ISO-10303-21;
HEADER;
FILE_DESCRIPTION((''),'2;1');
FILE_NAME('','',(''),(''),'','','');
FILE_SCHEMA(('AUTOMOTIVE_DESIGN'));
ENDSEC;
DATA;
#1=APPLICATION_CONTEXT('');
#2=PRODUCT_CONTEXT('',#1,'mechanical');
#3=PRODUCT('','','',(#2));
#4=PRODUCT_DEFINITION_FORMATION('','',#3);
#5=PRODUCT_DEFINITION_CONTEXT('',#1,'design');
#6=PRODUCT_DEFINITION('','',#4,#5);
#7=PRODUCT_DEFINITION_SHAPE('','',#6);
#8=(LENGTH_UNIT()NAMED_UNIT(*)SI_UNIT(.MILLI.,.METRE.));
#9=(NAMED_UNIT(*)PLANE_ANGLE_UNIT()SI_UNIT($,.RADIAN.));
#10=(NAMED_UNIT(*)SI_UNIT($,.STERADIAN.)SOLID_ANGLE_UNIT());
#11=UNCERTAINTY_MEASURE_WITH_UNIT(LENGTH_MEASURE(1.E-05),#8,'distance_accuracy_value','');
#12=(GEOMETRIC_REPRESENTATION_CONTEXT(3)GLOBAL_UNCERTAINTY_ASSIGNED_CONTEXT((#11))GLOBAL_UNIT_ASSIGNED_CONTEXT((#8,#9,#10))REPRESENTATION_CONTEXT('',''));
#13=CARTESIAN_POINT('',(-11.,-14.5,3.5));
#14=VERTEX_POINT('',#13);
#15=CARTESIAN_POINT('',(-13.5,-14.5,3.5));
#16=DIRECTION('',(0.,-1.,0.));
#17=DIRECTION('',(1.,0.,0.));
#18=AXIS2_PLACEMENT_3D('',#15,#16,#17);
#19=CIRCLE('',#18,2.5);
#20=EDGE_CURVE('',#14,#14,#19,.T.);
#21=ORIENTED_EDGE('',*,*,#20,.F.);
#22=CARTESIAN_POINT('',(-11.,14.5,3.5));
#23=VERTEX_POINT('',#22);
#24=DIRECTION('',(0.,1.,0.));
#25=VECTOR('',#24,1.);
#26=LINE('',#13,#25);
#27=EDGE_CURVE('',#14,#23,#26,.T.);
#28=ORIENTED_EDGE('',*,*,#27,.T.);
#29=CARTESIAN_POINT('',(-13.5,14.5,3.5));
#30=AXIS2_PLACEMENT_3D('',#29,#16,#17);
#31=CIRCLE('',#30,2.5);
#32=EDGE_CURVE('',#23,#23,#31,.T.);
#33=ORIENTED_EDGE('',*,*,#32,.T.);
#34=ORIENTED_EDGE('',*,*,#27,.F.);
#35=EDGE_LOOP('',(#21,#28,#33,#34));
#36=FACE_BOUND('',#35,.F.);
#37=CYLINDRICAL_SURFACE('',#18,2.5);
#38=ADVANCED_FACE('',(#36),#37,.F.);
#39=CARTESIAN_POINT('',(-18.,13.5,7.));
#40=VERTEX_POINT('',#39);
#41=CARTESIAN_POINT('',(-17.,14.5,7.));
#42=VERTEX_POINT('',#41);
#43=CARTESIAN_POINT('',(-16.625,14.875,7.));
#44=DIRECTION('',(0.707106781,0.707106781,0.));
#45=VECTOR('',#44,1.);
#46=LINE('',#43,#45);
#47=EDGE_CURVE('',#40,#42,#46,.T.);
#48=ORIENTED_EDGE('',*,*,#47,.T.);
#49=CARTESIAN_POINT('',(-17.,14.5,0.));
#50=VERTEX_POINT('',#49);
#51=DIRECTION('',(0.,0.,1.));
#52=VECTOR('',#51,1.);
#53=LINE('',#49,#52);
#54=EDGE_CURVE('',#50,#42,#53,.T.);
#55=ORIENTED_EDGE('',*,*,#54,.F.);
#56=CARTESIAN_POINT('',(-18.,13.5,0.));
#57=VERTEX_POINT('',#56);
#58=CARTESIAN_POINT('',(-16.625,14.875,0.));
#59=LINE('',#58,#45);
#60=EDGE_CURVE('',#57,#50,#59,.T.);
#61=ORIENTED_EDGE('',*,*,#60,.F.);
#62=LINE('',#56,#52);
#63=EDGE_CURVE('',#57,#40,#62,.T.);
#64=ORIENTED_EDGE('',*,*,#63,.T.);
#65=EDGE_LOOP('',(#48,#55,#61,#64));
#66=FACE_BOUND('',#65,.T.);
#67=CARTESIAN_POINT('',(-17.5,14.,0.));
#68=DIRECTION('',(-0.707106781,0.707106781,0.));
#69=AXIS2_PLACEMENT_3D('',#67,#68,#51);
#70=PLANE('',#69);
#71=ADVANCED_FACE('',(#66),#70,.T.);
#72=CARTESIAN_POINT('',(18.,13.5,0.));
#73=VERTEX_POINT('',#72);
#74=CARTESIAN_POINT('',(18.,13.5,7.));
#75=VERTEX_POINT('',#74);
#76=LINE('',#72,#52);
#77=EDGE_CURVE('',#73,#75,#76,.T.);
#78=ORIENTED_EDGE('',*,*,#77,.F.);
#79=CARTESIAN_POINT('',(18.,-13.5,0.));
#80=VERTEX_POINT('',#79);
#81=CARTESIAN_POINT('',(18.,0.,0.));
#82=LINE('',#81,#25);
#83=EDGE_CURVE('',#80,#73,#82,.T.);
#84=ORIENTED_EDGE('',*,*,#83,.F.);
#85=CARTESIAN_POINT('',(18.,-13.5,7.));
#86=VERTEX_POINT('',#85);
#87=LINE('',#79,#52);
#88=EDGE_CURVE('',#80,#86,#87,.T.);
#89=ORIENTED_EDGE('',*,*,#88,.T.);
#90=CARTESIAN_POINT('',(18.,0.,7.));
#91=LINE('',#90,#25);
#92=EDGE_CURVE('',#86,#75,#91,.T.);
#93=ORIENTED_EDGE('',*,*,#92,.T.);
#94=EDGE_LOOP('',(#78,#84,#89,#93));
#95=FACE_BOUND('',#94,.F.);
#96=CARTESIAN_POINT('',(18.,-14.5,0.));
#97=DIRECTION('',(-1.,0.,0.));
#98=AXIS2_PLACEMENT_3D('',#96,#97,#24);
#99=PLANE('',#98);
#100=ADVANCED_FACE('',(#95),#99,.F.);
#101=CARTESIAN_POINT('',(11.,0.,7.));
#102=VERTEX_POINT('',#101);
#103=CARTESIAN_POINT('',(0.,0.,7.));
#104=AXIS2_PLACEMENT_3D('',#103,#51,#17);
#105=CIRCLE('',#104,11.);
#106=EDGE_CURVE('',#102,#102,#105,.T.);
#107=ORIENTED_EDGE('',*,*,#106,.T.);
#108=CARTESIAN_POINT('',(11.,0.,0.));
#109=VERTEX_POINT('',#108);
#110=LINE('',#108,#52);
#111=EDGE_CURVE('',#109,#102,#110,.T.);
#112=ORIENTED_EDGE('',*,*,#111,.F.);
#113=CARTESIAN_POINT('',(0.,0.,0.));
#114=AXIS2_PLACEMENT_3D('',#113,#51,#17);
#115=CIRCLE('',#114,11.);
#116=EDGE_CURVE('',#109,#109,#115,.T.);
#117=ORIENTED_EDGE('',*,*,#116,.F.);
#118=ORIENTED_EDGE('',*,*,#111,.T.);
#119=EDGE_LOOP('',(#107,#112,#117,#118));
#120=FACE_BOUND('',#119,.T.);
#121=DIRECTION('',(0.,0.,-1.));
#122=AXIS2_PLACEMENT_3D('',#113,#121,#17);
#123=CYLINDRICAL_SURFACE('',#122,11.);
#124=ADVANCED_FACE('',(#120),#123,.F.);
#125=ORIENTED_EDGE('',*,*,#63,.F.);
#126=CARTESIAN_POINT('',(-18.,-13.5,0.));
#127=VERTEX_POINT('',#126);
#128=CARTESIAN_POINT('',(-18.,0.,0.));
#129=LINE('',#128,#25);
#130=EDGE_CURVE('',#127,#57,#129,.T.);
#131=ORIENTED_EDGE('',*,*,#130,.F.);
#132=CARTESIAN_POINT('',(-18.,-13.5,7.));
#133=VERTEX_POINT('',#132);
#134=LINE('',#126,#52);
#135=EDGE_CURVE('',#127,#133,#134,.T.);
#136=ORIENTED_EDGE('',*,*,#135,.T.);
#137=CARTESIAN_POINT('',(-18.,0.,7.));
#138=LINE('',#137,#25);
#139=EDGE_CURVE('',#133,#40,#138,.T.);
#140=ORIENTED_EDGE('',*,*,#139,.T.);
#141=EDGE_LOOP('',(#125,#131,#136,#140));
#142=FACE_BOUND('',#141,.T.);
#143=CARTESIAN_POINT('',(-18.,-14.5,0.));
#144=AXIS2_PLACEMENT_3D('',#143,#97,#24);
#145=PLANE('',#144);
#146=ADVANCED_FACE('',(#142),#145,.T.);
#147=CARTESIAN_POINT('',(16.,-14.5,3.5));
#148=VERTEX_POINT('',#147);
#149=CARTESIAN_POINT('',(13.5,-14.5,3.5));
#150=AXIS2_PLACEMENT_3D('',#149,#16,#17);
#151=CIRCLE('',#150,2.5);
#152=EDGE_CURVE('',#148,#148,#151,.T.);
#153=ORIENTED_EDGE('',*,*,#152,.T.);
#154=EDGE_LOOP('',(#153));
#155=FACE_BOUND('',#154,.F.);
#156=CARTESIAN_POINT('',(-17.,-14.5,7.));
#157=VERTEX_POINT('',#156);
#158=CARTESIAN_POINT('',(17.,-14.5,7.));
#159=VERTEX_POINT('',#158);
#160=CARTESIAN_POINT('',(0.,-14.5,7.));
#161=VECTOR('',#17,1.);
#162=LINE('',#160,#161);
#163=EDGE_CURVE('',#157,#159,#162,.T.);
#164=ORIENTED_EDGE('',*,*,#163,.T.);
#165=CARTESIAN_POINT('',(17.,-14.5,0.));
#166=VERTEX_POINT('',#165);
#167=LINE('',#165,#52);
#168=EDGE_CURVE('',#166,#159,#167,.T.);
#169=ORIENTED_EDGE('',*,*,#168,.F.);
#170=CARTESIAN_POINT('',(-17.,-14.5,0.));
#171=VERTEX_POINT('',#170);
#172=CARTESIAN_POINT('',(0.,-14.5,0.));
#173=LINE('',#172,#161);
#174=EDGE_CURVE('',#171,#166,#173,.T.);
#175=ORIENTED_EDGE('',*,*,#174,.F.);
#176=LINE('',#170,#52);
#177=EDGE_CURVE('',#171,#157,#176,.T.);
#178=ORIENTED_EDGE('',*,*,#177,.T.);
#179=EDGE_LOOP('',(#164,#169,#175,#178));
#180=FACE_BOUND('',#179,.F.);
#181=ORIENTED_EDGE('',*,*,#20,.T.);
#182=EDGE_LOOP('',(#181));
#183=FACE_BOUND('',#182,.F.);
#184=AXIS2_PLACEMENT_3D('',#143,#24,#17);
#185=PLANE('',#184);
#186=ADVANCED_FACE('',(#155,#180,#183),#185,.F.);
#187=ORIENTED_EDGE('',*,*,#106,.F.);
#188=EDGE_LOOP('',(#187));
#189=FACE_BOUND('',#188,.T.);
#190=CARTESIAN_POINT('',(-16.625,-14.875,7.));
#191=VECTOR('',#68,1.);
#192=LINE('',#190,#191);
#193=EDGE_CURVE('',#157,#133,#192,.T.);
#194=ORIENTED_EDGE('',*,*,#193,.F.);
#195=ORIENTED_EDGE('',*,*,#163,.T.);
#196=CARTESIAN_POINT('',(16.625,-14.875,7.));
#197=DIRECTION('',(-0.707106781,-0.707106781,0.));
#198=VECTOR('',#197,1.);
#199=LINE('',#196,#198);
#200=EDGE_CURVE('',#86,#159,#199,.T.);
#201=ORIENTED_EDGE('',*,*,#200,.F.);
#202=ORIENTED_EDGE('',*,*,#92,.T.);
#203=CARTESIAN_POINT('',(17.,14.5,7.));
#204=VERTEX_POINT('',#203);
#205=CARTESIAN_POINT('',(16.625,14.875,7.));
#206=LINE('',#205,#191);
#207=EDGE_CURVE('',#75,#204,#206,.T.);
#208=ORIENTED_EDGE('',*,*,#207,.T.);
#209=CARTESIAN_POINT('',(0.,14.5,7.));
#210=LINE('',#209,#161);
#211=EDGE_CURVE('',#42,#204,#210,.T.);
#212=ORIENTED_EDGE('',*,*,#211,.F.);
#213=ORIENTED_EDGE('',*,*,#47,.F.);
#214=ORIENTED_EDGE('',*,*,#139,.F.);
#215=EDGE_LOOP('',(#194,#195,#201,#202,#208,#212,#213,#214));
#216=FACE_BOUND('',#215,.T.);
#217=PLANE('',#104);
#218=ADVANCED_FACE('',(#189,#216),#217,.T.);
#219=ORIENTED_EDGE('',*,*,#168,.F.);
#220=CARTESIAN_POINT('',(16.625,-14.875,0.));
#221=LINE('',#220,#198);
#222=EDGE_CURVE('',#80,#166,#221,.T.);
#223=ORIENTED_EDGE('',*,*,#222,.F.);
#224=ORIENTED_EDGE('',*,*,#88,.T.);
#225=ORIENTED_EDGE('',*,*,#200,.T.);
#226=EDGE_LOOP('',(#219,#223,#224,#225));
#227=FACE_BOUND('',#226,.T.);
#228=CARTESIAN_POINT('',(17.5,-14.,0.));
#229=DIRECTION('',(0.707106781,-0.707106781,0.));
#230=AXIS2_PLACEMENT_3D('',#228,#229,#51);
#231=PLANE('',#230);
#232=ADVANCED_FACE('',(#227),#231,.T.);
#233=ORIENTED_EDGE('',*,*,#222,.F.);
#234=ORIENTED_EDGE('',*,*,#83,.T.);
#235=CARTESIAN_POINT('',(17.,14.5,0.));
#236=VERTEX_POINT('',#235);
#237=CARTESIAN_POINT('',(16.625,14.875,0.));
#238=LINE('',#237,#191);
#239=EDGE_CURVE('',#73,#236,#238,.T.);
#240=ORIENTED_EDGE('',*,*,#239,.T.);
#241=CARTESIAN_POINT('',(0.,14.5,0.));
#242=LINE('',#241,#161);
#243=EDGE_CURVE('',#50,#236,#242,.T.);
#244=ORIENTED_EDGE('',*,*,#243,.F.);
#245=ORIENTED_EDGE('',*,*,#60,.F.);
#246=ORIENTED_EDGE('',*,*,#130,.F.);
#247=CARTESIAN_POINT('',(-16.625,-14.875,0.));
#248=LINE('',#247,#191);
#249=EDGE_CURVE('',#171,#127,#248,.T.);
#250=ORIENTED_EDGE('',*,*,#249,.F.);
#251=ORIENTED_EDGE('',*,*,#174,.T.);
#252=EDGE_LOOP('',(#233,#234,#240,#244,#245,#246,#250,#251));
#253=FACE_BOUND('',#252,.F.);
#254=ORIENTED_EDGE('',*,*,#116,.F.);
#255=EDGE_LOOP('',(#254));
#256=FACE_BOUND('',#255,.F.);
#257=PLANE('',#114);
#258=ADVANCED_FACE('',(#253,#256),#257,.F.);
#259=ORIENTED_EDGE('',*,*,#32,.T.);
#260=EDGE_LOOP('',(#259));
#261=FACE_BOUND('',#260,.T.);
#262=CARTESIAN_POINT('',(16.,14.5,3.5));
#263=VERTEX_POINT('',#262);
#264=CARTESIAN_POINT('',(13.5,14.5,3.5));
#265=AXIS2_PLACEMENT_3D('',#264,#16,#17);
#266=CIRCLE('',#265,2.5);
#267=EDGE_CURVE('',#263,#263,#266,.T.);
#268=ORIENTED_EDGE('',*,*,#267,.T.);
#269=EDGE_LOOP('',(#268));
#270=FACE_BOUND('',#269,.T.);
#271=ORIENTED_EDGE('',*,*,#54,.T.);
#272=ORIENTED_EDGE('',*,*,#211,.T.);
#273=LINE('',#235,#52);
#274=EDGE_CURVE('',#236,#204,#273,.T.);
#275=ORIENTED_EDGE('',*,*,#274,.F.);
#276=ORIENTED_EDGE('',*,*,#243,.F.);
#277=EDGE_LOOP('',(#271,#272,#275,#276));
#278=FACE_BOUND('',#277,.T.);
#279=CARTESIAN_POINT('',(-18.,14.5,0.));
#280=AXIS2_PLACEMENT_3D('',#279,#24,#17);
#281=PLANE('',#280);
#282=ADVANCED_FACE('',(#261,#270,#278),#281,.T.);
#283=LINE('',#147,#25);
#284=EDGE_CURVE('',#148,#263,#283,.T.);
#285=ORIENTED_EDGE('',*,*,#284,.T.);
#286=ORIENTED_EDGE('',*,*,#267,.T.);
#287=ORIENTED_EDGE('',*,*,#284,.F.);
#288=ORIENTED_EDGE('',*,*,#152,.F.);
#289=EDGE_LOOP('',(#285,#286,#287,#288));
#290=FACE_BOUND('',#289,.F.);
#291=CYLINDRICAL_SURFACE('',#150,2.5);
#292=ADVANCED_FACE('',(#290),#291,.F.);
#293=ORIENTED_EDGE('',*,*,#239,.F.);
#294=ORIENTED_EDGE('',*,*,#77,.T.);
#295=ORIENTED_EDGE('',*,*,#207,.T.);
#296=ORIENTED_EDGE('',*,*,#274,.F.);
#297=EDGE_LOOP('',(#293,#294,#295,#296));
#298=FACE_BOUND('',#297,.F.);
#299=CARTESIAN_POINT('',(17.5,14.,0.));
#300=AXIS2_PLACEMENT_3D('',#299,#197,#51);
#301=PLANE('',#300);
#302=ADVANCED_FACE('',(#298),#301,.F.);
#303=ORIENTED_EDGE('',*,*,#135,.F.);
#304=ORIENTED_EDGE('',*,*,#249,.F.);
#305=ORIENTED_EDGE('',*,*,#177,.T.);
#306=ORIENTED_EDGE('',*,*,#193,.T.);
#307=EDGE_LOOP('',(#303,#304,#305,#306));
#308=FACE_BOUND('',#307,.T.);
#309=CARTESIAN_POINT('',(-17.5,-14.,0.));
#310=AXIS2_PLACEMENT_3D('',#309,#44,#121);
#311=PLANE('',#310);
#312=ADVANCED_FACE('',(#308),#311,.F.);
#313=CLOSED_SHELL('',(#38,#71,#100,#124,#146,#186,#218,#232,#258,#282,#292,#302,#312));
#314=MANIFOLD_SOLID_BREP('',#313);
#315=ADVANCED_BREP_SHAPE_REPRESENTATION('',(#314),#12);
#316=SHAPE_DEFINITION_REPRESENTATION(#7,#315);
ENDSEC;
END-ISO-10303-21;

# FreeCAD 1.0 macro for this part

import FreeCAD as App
import Part
import Sketcher


def edges_at(feature, points):
    """Names of the edges that pass closest to the given points."""
    edges = feature.Shape.Edges
    near = lambda p: min(range(len(edges)), key=lambda i: edges[i].distToShape(Part.Vertex(*p))[0])
    return sorted({f"Edge{near(p) + 1}" for p in points})


def add_polygon(sketch, points):
    """Adds a closed chain of lines whose ends are joined by coincident constraints."""
    first, n = sketch.GeometryCount, len(points)
    for a, b in zip(points, points[1:] + points[:1]):
        sketch.addGeometry(Part.LineSegment(App.Vector(*a, 0), App.Vector(*b, 0)), False)
    for i in range(n):
        sketch.addConstraint(Sketcher.Constraint("Coincident", first + i, 2, first + (i + 1) % n, 1))

doc = App.newDocument("Part")
body = doc.addObject("PartDesign::Body", "Body")

# Sketch on XY plane
sketch1 = doc.addObject("Sketcher::SketchObject", "Sketch")
body.addObject(sketch1)
sketch1.AttachmentSupport = (doc.XY_Plane, [""])
sketch1.MapMode = "FlatFace"
add_polygon(sketch1, [(-18, 14.5), (-18, -14.5), (18, -14.5), (18, 14.5)])  # lines 0-3
sketch1.addGeometry(Part.Circle(App.Vector(0, 0, 0), App.Vector(0, 0, 1), 11), False)  # 4
sketch1.addConstraint([
    Sketcher.Constraint("Vertical", 0),
    Sketcher.Constraint("Horizontal", 1),
    Sketcher.Constraint("Vertical", 2),
    Sketcher.Constraint("Horizontal", 3),
    Sketcher.Constraint("Coincident", 4, 3, -1, 1),
    Sketcher.Constraint("Symmetric", 0, 2, 2, 2, -1, 1),
    Sketcher.Constraint("Diameter", 4, 22.0),
    Sketcher.Constraint("DistanceX", 1, 1, 1, 2, 36.0),
    Sketcher.Constraint("DistanceY", 0, 2, 0, 1, 29.0),
])
pad1 = doc.addObject("PartDesign::Pad", "Pad")
body.addObject(pad1)
pad1.Profile = sketch1
pad1.Length = 7

# Sketch on XZ plane
sketch2 = doc.addObject("Sketcher::SketchObject", "Sketch001")
body.addObject(sketch2)
sketch2.AttachmentSupport = (doc.XZ_Plane, [""])
sketch2.MapMode = "FlatFace"
sketch2.AttachmentOffset = App.Placement(App.Vector(0, 0, 14.5), App.Rotation())
sketch2.addGeometry([
    Part.Circle(App.Vector(13.5, 3.5, 0), App.Vector(0, 0, 1), 2.5),
    Part.Circle(App.Vector(-13.5, 3.5, 0), App.Vector(0, 0, 1), 2.5),
], False)
sketch2.addConstraint([
    Sketcher.Constraint("Equal", 0, 1),
    Sketcher.Constraint("Symmetric", 0, 3, 1, 3, -2),
    Sketcher.Constraint("Diameter", 0, 5.0),
    Sketcher.Constraint("DistanceX", 1, 3, 0, 3, 27.0),
    Sketcher.Constraint("DistanceY", -1, 1, 0, 3, 3.5),
])
pocket1 = doc.addObject("PartDesign::Pocket", "Pocket")
body.addObject(pocket1)
pocket1.Profile = sketch2
pocket1.Type = "ThroughAll"
doc.recompute()

chamfer = doc.addObject("PartDesign::Chamfer", "Chamfer")
body.addObject(chamfer)
chamfer.Base = (pocket1, edges_at(pocket1, [(18, -14.5, 3.5)]))
chamfer.Size = 1
doc.recompute()

chamfer2 = doc.addObject("PartDesign::Chamfer", "Chamfer001")
body.addObject(chamfer2)
chamfer2.Base = (chamfer, edges_at(chamfer, [(-18, -14.5, 3.5)]))
chamfer2.Size = 1
doc.recompute()

chamfer3 = doc.addObject("PartDesign::Chamfer", "Chamfer002")
body.addObject(chamfer3)
chamfer3.Base = (chamfer2, edges_at(chamfer2, [(18, 14.5, 3.5), (-18, 14.5, 3.5)]))
chamfer3.Size = 1

doc.recompute()
